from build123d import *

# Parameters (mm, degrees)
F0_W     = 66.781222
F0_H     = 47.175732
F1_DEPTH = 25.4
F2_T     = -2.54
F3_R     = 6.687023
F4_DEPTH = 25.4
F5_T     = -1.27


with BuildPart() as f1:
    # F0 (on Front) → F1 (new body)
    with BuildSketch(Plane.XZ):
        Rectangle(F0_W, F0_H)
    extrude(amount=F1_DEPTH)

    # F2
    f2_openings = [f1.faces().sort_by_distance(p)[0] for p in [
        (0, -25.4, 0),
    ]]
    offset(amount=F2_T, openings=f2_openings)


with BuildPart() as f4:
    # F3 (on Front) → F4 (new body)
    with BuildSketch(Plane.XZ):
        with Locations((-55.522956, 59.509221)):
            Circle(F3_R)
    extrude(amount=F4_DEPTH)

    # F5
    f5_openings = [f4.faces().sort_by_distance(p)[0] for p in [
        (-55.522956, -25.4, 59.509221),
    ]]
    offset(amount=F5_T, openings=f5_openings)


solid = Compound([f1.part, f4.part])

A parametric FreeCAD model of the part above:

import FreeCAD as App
import Part
import Sketcher

V = App.Vector
Q = App.Units.Quantity


def faces_at(feature, points):
    """Names of the faces that lie closest to the given points."""
    faces = feature.Shape.Faces
    near = lambda p: min(range(len(faces)), key=lambda i: faces[i].distToShape(Part.Vertex(*p))[0])
    return sorted({f"Face{near(p) + 1}" for p in points})


def add_polygon(sketch, points):
    """Adds a closed chain of lines whose ends are joined by coincident constraints."""
    first, n = sketch.GeometryCount, len(points)
    for a, b in zip(points, points[1:] + points[:1]):
        sketch.addGeometry(Part.LineSegment(App.Vector(*a, 0), App.Vector(*b, 0)), False)
    for i in range(n):
        sketch.addConstraint(Sketcher.Constraint("Coincident", first + i, 2, first + (i + 1) % n, 1))

doc = App.newDocument("Part")
body = doc.addObject("PartDesign::Body", "Body")

# Sketch on XZ plane
sketch1 = doc.addObject("Sketcher::SketchObject", "Sketch")
body.addObject(sketch1)
sketch1.AttachmentSupport = (doc.XZ_Plane, [""])
sketch1.MapMode = "FlatFace"
add_polygon(sketch1, [(-33, 24), (-33, -24), (33, -24), (33, 24)])  # lines 0-3
sketch1.addConstraint([
    Sketcher.Constraint("Vertical", 0),
    Sketcher.Constraint("Horizontal", 1),
    Sketcher.Constraint("Vertical", 2),
    Sketcher.Constraint("Horizontal", 3),
    Sketcher.Constraint("Symmetric", 0, 2, 2, 2, -1, 1),
    Sketcher.Constraint("DistanceX", 1, 1, 1, 2, Q("66.781222 mm")),
    Sketcher.Constraint("DistanceY", 0, 2, 0, 1, Q("47.175732 mm")),
])
pad1 = doc.addObject("PartDesign::Pad", "Pad")
body.addObject(pad1)
pad1.Profile = sketch1
pad1.Length = Q("1 in")
doc.recompute()

thickness = doc.addObject("PartDesign::Thickness", "Thickness")
body.addObject(thickness)
thickness.Base = (pad1, faces_at(pad1, [(0, -25.4, 0)]))
thickness.Value = Q("0.1 in")
thickness.Reversed = True
thickness.Join = "Arc"
body2 = doc.addObject("PartDesign::Body", "Body001")

# Sketch on XZ plane
sketch2 = doc.addObject("Sketcher::SketchObject", "Sketch001")
body2.addObject(sketch2)
sketch2.AttachmentSupport = (doc.getObject("XZ_Plane001"), [""])
sketch2.MapMode = "FlatFace"
sketch2.addGeometry(Part.Circle(V(-56, 60, 0), V(0, 0, 1), 7), False)
sketch2.addConstraint([
    Sketcher.Constraint("Diameter", 0, Q("13.374046 mm")),
    Sketcher.Constraint("DistanceY", -1, 1, 0, 3, Q("59.509221 mm")),
    Sketcher.Constraint("DistanceX", 0, 3, -1, 1, Q("55.522956 mm")),
])
pad2 = doc.addObject("PartDesign::Pad", "Pad001")
body2.addObject(pad2)
pad2.Profile = sketch2
pad2.Length = Q("1 in")
doc.recompute()

thickness2 = doc.addObject("PartDesign::Thickness", "Thickness001")
body2.addObject(thickness2)
thickness2.Base = (pad2, faces_at(pad2, [(-55.523, -25.4, 59.509)]))
thickness2.Value = Q("0.05 in")
thickness2.Reversed = True
thickness2.Join = "Arc"

doc.recompute()
